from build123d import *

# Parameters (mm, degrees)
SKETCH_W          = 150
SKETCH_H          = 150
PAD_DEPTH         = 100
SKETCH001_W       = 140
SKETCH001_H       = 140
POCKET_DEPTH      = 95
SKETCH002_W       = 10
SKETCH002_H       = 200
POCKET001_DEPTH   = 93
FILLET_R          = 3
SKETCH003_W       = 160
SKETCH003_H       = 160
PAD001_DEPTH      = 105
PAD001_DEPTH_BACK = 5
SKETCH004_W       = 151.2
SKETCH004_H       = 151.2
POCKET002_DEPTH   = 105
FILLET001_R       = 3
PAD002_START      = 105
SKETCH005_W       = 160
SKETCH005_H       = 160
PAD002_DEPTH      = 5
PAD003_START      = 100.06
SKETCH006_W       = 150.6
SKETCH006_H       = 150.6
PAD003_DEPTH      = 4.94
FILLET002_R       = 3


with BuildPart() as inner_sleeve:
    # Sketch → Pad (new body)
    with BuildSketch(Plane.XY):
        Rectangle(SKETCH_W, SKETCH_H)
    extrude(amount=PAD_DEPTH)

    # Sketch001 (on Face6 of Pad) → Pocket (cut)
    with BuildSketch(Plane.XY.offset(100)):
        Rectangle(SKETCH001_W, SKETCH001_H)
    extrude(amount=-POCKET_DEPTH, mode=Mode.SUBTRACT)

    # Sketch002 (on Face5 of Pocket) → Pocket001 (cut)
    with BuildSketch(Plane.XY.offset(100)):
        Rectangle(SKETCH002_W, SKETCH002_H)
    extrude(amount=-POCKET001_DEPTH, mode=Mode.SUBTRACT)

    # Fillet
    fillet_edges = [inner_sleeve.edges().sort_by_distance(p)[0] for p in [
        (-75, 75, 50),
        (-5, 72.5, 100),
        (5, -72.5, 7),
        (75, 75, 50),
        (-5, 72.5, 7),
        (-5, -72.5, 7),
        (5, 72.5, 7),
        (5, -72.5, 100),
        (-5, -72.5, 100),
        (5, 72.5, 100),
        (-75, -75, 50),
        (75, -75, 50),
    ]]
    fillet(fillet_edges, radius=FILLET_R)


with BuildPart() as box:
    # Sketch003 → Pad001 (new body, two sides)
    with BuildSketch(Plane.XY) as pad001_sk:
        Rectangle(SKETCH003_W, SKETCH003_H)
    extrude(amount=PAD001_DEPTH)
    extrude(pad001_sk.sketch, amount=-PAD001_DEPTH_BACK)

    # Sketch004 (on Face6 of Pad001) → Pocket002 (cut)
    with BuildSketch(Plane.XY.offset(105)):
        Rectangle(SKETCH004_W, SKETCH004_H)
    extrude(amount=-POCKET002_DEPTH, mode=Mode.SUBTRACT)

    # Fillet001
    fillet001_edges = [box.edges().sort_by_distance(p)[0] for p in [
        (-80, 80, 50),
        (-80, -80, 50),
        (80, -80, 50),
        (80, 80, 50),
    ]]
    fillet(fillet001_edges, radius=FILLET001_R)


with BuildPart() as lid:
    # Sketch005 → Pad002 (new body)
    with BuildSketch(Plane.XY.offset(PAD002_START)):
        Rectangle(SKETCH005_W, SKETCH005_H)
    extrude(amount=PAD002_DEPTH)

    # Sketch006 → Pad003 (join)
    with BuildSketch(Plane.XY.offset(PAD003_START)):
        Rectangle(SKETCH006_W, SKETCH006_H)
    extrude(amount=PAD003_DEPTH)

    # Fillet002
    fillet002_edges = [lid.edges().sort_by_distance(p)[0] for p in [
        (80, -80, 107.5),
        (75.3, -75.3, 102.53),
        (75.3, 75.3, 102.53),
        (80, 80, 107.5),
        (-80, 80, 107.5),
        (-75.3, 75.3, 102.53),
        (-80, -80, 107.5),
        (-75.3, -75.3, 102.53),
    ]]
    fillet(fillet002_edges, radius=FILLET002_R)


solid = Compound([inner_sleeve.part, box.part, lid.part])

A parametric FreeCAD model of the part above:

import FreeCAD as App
import Part
import Sketcher
from FreeCAD import Vector


def edges_at(feature, points):
    """Names of the edges that pass closest to the given points."""
    edges = feature.Shape.Edges
    near = lambda p: min(range(len(edges)), key=lambda i: edges[i].distToShape(Part.Vertex(*p))[0])
    return sorted({f"Edge{near(p) + 1}" for p in points})


def add_polygon(sketch, points):
    """Adds a closed chain of lines whose ends are joined by coincident constraints."""
    first, n = sketch.GeometryCount, len(points)
    for a, b in zip(points, points[1:] + points[:1]):
        sketch.addGeometry(Part.LineSegment(App.Vector(*a, 0), App.Vector(*b, 0)), False)
    for i in range(n):
        sketch.addConstraint(Sketcher.Constraint("Coincident", first + i, 2, first + (i + 1) % n, 1))

doc = App.newDocument("Part")
params = doc.addObject("Spreadsheet::Sheet", "Params")
for row, (alias, value) in enumerate([
    ("sketch1_width", "150 mm"),
    ("pad1_length", "100 mm"),
    ("sketch2_width", "140 mm"),
    ("pocket1_length", "95 mm"),
    ("sketch3_width", "10 mm"),
    ("sketch3_height", "200 mm"),
    ("pocket2_length", "93 mm"),
    ("fillet_radius", "3 mm"),
    ("sketch4_width", "160 mm"),
    ("pad2_length", "105 mm"),
    ("pad2_length2", "5 mm"),
    ("sketch5_width", "151.2 mm"),
    ("pocket3_length", "105 mm"),
    ("fillet2_radius", "3 mm"),
    ("sketch6_width", "160 mm"),
    ("pad3_length", "5 mm"),
    ("sketch7_width", "150.6 mm"),
    ("pad4_length", "4.94 mm"),
    ("fillet3_radius", "3 mm"),
], start=1):
    params.set(f"A{row}", alias)
    params.set(f"B{row}", "=" + value)
    params.setAlias(f"B{row}", alias)

body = doc.addObject("PartDesign::Body", "Body")

sketch1 = body.newObject("Sketcher::SketchObject", "Sketch")
sketch1.AttachmentSupport = (doc.getObject("XY_Plane"), [""])
sketch1.MapMode = "FlatFace"
add_polygon(sketch1, [(-75, 75), (-75, -75), (75, -75), (75, 75)])
sketch1.addConstraint([
    Sketcher.Constraint("Vertical", 0),
    Sketcher.Constraint("Horizontal", 1),
    Sketcher.Constraint("Vertical", 2),
    Sketcher.Constraint("Horizontal", 3),
    Sketcher.Constraint("Symmetric", 0, 2, 2, 2, -1, 1),
    Sketcher.Constraint("Equal", 3, 0),
    Sketcher.Constraint("DistanceX", 1, 1, 1, 2, 150.0),
])
sketch1.setExpression("Constraints[10]", "Params.sketch1_width")
pad1 = body.newObject("PartDesign::Pad", "Pad")
pad1.Profile = sketch1
pad1.setExpression("Length", "Params.pad1_length")

sketch2 = body.newObject("Sketcher::SketchObject", "Sketch001")
sketch2.AttachmentSupport = (doc.getObject("XY_Plane"), [""])
sketch2.MapMode = "FlatFace"
sketch2.AttachmentOffset = App.Placement(Vector(0, 0, 100), App.Rotation())
add_polygon(sketch2, [(-70, 70), (-70, -70), (70, -70), (70, 70)])
sketch2.addConstraint([
    Sketcher.Constraint("Vertical", 0),
    Sketcher.Constraint("Horizontal", 1),
    Sketcher.Constraint("Vertical", 2),
    Sketcher.Constraint("Horizontal", 3),
    Sketcher.Constraint("Symmetric", 0, 2, 2, 2, -1, 1),
    Sketcher.Constraint("Equal", 3, 0),
    Sketcher.Constraint("DistanceX", 1, 1, 1, 2, 140.0),
])
sketch2.setExpression("Constraints[10]", "Params.sketch2_width")
pocket1 = body.newObject("PartDesign::Pocket", "Pocket")
pocket1.Profile = sketch2
pocket1.setExpression("Length", "Params.pocket1_length")

sketch3 = body.newObject("Sketcher::SketchObject", "Sketch002")
sketch3.AttachmentSupport = (doc.getObject("XY_Plane"), [""])
sketch3.MapMode = "FlatFace"
sketch3.AttachmentOffset = App.Placement(Vector(0, 0, 100), App.Rotation())
add_polygon(sketch3, [(-5, 100), (-5, -100), (5, -100), (5, 100)])
sketch3.addConstraint([
    Sketcher.Constraint("Vertical", 0),
    Sketcher.Constraint("Horizontal", 1),
    Sketcher.Constraint("Vertical", 2),
    Sketcher.Constraint("Horizontal", 3),
    Sketcher.Constraint("Symmetric", 0, 2, 2, 2, -1, 1),
    Sketcher.Constraint("DistanceX", 1, 1, 1, 2, 10.0),
    Sketcher.Constraint("DistanceY", 0, 2, 0, 1, 200.0),
])
sketch3.setExpression("Constraints[9]", "Params.sketch3_width")
sketch3.setExpression("Constraints[10]", "Params.sketch3_height")
pocket2 = body.newObject("PartDesign::Pocket", "Pocket001")
pocket2.Profile = sketch3
pocket2.setExpression("Length", "Params.pocket2_length")
doc.recompute()

fillet = body.newObject("PartDesign::Fillet", "Fillet")
fillet.Base = (pocket2, edges_at(pocket2, [
    (-75, 75, 50),
    (-5, 72.5, 100),
    (5, -72.5, 7),
    (75, 75, 50),
    (-5, 72.5, 7),
    (-5, -72.5, 7),
    (5, 72.5, 7),
    (5, -72.5, 100),
    (-5, -72.5, 100),
    (5, 72.5, 100),
    (-75, -75, 50),
    (75, -75, 50),
]))
fillet.setExpression("Radius", "Params.fillet_radius")
body2 = doc.addObject("PartDesign::Body", "Body001")

sketch4 = body2.newObject("Sketcher::SketchObject", "Sketch003")
sketch4.AttachmentSupport = (doc.getObject("XY_Plane001"), [""])
sketch4.MapMode = "FlatFace"
add_polygon(sketch4, [(-80, 80), (-80, -80), (80, -80), (80, 80)])
sketch4.addConstraint([
    Sketcher.Constraint("Vertical", 0),
    Sketcher.Constraint("Horizontal", 1),
    Sketcher.Constraint("Vertical", 2),
    Sketcher.Constraint("Horizontal", 3),
    Sketcher.Constraint("Symmetric", 0, 2, 2, 2, -1, 1),
    Sketcher.Constraint("Equal", 3, 0),
    Sketcher.Constraint("DistanceX", 1, 1, 1, 2, 160.0),
])
sketch4.setExpression("Constraints[10]", "Params.sketch4_width")
pad2 = body2.newObject("PartDesign::Pad", "Pad001")
pad2.Profile = sketch4
pad2.Type = "TwoLengths"
pad2.setExpression("Length", "Params.pad2_length")
pad2.setExpression("Length2", "Params.pad2_length2")

sketch5 = body2.newObject("Sketcher::SketchObject", "Sketch004")
sketch5.AttachmentSupport = (doc.getObject("XY_Plane001"), [""])
sketch5.MapMode = "FlatFace"
sketch5.AttachmentOffset = App.Placement(Vector(0, 0, 105), App.Rotation())
add_polygon(sketch5, [(-76, 76), (-76, -76), (76, -76), (76, 76)])
sketch5.addConstraint([
    Sketcher.Constraint("Vertical", 0),
    Sketcher.Constraint("Horizontal", 1),
    Sketcher.Constraint("Vertical", 2),
    Sketcher.Constraint("Horizontal", 3),
    Sketcher.Constraint("Symmetric", 0, 2, 2, 2, -1, 1),
    Sketcher.Constraint("Equal", 3, 0),
    Sketcher.Constraint("DistanceX", 1, 1, 1, 2, 151.2),
])
sketch5.setExpression("Constraints[10]", "Params.sketch5_width")
pocket3 = body2.newObject("PartDesign::Pocket", "Pocket002")
pocket3.Profile = sketch5
pocket3.setExpression("Length", "Params.pocket3_length")
doc.recompute()

fillet2 = body2.newObject("PartDesign::Fillet", "Fillet001")
fillet2.Base = (pocket3, edges_at(pocket3, [
    (-80, 80, 50),
    (-80, -80, 50),
    (80, -80, 50),
    (80, 80, 50),
]))
fillet2.setExpression("Radius", "Params.fillet2_radius")
body3 = doc.addObject("PartDesign::Body", "Body002")

sketch6 = body3.newObject("Sketcher::SketchObject", "Sketch005")
sketch6.AttachmentSupport = (doc.getObject("XY_Plane002"), [""])
sketch6.MapMode = "FlatFace"
sketch6.AttachmentOffset = App.Placement(Vector(0, 0, 105), App.Rotation())
add_polygon(sketch6, [(-80, 80), (-80, -80), (80, -80), (80, 80)])
sketch6.addConstraint([
    Sketcher.Constraint("Vertical", 0),
    Sketcher.Constraint("Horizontal", 1),
    Sketcher.Constraint("Vertical", 2),
    Sketcher.Constraint("Horizontal", 3),
    Sketcher.Constraint("Symmetric", 0, 2, 2, 2, -1, 1),
    Sketcher.Constraint("Equal", 3, 0),
    Sketcher.Constraint("DistanceX", 1, 1, 1, 2, 160.0),
])
sketch6.setExpression("Constraints[10]", "Params.sketch6_width")
pad3 = body3.newObject("PartDesign::Pad", "Pad002")
pad3.Profile = sketch6
pad3.setExpression("Length", "Params.pad3_length")

sketch7 = body3.newObject("Sketcher::SketchObject", "Sketch006")
sketch7.AttachmentSupport = (doc.getObject("XY_Plane002"), [""])
sketch7.MapMode = "FlatFace"
sketch7.AttachmentOffset = App.Placement(Vector(0, 0, 100.06), App.Rotation())
add_polygon(sketch7, [(-75, 75), (-75, -75), (75, -75), (75, 75)])
sketch7.addConstraint([
    Sketcher.Constraint("Vertical", 0),
    Sketcher.Constraint("Horizontal", 1),
    Sketcher.Constraint("Vertical", 2),
    Sketcher.Constraint("Horizontal", 3),
    Sketcher.Constraint("Symmetric", 0, 2, 2, 2, -1, 1),
    Sketcher.Constraint("Equal", 3, 0),
    Sketcher.Constraint("DistanceX", 1, 1, 1, 2, 150.6),
])
sketch7.setExpression("Constraints[10]", "Params.sketch7_width")
pad4 = body3.newObject("PartDesign::Pad", "Pad003")
pad4.Profile = sketch7
pad4.setExpression("Length", "Params.pad4_length")
doc.recompute()

fillet3 = body3.newObject("PartDesign::Fillet", "Fillet002")
fillet3.Base = (pad4, edges_at(pad4, [
    (80, -80, 107.5),
    (75.3, -75.3, 102.53),
    (75.3, 75.3, 102.53),
    (80, 80, 107.5),
    (-80, 80, 107.5),
    (-75.3, 75.3, 102.53),
    (-80, -80, 107.5),
    (-75.3, -75.3, 102.53),
]))
fillet3.setExpression("Radius", "Params.fillet3_radius")

doc.recompute()
